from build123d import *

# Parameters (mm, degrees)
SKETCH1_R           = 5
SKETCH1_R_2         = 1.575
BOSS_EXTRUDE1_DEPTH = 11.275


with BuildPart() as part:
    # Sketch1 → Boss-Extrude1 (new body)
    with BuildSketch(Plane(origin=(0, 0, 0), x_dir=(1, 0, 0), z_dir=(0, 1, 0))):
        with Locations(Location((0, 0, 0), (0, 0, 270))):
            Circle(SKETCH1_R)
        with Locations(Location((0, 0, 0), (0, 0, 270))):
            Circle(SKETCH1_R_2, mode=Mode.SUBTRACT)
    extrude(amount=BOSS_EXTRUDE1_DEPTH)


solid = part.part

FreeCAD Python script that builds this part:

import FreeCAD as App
import Part
import Sketcher

V = App.Vector
Q = App.Units.Quantity

doc = App.newDocument("Part")
body = doc.addObject("PartDesign::Body", "Body")

# Sketch on XZ plane
sketch1 = doc.addObject("Sketcher::SketchObject", "Sketch")
body.addObject(sketch1)
sketch1.AttachmentSupport = (doc.XZ_Plane, [""])
sketch1.MapMode = "FlatFace"
sketch1.addGeometry([
    Part.Circle(V(0, 0, 0), V(0, 0, 1), 5),
    Part.Circle(V(0, 0, 0), V(0, 0, 1), 1.6),
], False)
sketch1.addConstraint([
    Sketcher.Constraint("Coincident", 0, 3, -1, 1),
    Sketcher.Constraint("Coincident", 1, 3, -1, 1),
    Sketcher.Constraint("Diameter", 0, Q("10 mm")),
    Sketcher.Constraint("Diameter", 1, Q("3.15 mm")),
])
pad1 = doc.addObject("PartDesign::Pad", "Pad")
body.addObject(pad1)
pad1.Profile = sketch1
pad1.Length = 11.275
pad1.Reversed = True

doc.recompute()
